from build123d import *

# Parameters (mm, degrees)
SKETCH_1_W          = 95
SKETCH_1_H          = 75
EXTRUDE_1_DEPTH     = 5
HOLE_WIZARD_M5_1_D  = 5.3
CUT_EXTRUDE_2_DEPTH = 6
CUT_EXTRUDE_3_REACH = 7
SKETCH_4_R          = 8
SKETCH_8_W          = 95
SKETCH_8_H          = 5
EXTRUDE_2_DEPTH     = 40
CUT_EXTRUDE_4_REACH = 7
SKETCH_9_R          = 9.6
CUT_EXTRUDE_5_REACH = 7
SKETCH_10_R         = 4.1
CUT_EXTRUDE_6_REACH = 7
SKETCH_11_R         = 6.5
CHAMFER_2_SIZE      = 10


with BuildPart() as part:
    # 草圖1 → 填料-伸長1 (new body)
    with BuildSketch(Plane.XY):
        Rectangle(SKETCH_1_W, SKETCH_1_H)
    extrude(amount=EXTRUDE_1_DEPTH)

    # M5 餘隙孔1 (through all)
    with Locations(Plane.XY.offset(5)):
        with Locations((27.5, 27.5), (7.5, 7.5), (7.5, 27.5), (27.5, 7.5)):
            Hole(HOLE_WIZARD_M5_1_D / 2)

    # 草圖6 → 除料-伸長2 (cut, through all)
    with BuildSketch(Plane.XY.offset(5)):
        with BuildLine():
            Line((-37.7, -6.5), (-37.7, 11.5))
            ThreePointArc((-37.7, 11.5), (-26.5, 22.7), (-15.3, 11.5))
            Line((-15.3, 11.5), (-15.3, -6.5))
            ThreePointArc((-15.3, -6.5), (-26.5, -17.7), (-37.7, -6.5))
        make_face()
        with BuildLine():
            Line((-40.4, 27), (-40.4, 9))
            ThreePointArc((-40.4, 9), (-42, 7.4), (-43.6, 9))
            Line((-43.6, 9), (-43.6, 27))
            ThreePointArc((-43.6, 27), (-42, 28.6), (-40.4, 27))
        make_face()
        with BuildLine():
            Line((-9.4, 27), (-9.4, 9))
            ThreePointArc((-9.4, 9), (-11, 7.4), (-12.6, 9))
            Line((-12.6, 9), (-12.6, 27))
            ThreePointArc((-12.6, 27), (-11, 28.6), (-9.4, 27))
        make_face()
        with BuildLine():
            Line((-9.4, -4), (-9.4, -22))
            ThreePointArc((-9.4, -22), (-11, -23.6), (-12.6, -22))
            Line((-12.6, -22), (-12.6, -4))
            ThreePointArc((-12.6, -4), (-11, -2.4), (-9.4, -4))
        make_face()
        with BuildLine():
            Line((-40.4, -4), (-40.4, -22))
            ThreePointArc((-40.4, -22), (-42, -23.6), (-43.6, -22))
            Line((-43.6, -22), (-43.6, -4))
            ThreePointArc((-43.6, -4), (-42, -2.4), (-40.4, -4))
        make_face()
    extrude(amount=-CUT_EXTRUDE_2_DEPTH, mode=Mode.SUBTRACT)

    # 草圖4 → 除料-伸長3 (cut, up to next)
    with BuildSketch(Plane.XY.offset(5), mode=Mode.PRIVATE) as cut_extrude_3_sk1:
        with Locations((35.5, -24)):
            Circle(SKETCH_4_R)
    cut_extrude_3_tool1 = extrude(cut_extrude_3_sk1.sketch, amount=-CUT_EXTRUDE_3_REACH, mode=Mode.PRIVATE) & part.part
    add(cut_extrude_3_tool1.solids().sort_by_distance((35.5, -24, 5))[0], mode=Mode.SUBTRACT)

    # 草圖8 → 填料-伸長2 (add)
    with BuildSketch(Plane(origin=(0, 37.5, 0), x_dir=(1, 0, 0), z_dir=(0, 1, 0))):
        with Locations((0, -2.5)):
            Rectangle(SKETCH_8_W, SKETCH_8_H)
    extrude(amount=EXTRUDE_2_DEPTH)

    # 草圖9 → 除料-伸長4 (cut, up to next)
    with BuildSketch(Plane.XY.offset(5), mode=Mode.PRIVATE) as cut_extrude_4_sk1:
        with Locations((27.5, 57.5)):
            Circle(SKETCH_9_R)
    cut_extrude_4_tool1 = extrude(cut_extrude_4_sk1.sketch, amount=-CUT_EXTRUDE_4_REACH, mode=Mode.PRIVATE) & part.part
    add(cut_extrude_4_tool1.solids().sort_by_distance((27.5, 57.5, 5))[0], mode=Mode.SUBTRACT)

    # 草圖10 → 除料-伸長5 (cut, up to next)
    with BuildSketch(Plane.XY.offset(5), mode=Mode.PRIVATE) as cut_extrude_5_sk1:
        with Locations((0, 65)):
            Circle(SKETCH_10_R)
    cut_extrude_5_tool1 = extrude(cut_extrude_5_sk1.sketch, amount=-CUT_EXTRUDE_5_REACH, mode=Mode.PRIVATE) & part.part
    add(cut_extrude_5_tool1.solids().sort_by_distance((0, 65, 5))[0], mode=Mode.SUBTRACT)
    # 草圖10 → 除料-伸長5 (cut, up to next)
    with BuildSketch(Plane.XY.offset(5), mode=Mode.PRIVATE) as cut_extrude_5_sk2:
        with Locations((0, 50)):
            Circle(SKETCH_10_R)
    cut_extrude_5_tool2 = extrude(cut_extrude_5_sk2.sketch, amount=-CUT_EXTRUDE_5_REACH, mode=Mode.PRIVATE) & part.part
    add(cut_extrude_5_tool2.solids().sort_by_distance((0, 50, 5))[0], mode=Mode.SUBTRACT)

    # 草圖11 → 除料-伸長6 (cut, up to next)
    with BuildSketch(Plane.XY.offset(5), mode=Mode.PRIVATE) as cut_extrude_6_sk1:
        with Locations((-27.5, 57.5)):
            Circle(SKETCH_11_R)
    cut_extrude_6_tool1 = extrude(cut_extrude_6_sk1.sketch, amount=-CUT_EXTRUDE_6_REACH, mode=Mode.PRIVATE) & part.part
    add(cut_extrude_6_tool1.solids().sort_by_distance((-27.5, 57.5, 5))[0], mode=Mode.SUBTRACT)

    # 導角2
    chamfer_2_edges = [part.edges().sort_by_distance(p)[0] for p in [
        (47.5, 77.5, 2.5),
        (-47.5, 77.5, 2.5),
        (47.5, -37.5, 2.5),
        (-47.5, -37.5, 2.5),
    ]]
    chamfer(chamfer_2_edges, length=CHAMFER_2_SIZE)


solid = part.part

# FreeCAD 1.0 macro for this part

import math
import FreeCAD as App
import Part
import Sketcher
from FreeCAD import Vector


def edges_at(feature, points):
    """Names of the edges that pass closest to the given points."""
    edges = feature.Shape.Edges
    near = lambda p: min(range(len(edges)), key=lambda i: edges[i].distToShape(Part.Vertex(*p))[0])
    return sorted({f"Edge{near(p) + 1}" for p in points})

doc = App.newDocument("Part")
params = doc.addObject("Spreadsheet::Sheet", "Params")
for row, (alias, value) in enumerate([
    ("sketch1_width", "95 mm"),
    ("sketch1_height", "75 mm"),
    ("pad1_length", "5 mm"),
    ("sketch2_diameter", "5.3 mm"),
    ("hole_diameter", "5.3 mm"),
    ("sketch3_radius", "11.2 mm"),
    ("sketch3_radius2", "1.6 mm"),
    ("sketch3_height", "18 mm"),
    ("sketch4_diameter", "16 mm"),
    ("sketch5_width", "95 mm"),
    ("sketch5_height", "5 mm"),
    ("pad2_length", "40 mm"),
    ("sketch6_diameter", "19.2 mm"),
    ("sketch7_diameter", "8.2 mm"),
    ("sketch8_diameter", "8.2 mm"),
    ("sketch9_diameter", "13 mm"),
    ("chamfer_size", "10 mm"),
], start=1):
    params.set(f"A{row}", alias)
    params.set(f"B{row}", "=" + value)
    params.setAlias(f"B{row}", alias)

body = doc.addObject("PartDesign::Body", "Body")

# Sketch on XY plane
sketch1 = doc.addObject("Sketcher::SketchObject", "Sketch")
body.addObject(sketch1)
sketch1.AttachmentSupport = (doc.XY_Plane, [""])
sketch1.MapMode = "FlatFace"
sketch1.addGeometry(Part.LineSegment(Vector(-48, 38, 0), Vector(-48, -38, 0)), False)
sketch1.addGeometry(Part.LineSegment(Vector(-48, -38, 0), Vector(48, -38, 0)), False)
sketch1.addGeometry(Part.LineSegment(Vector(48, -38, 0), Vector(48, 38, 0)), False)
sketch1.addGeometry(Part.LineSegment(Vector(48, 38, 0), Vector(-48, 38, 0)), False)
sketch1.addConstraint(Sketcher.Constraint("Coincident", 0, 2, 1, 1))
sketch1.addConstraint(Sketcher.Constraint("Coincident", 1, 2, 2, 1))
sketch1.addConstraint(Sketcher.Constraint("Coincident", 2, 2, 3, 1))
sketch1.addConstraint(Sketcher.Constraint("Coincident", 3, 2, 0, 1))
sketch1.addConstraint(Sketcher.Constraint("Vertical", 0))
sketch1.addConstraint(Sketcher.Constraint("Horizontal", 1))
sketch1.addConstraint(Sketcher.Constraint("Vertical", 2))
sketch1.addConstraint(Sketcher.Constraint("Horizontal", 3))
sketch1.addConstraint(Sketcher.Constraint("Symmetric", 0, 2, 2, 2, -1, 1))
sketch1.addConstraint(Sketcher.Constraint("DistanceX", 1, 1, 1, 2, 95.0))
sketch1.addConstraint(Sketcher.Constraint("DistanceY", 0, 2, 0, 1, 75.0))
sketch1.setExpression("Constraints[9]", "Params.sketch1_width")
sketch1.setExpression("Constraints[10]", "Params.sketch1_height")
pad1 = doc.addObject("PartDesign::Pad", "Pad")
body.addObject(pad1)
pad1.Profile = sketch1
pad1.setExpression("Length", "Params.pad1_length")

# Sketch on XY plane
sketch2 = doc.addObject("Sketcher::SketchObject", "Sketch001")
body.addObject(sketch2)
sketch2.AttachmentSupport = (doc.XY_Plane, [""])
sketch2.MapMode = "FlatFace"
sketch2.AttachmentOffset = App.Placement(Vector(0, 0, 5), App.Rotation())
sketch2.addGeometry(Part.Circle(Vector(27.5, 27.5, 0), Vector(0, 0, 1), 2.6), False)
sketch2.addGeometry(Part.Circle(Vector(7.5, 7.5, 0), Vector(0, 0, 1), 2.6), False)
sketch2.addGeometry(Part.Circle(Vector(7.5, 27.5, 0), Vector(0, 0, 1), 2.6), False)
sketch2.addGeometry(Part.Circle(Vector(27.5, 7.5, 0), Vector(0, 0, 1), 2.6), False)
sketch2.addConstraint(Sketcher.Constraint("Equal", 0, 1))
sketch2.addConstraint(Sketcher.Constraint("Equal", 1, 2))
sketch2.addConstraint(Sketcher.Constraint("Equal", 2, 3))
sketch2.addConstraint(Sketcher.Constraint("Horizontal", 0, 3, 2, 3))
sketch2.addConstraint(Sketcher.Constraint("Horizontal", 1, 3, 3, 3))
sketch2.addConstraint(Sketcher.Constraint("Vertical", 1, 3, 2, 3))
sketch2.addConstraint(Sketcher.Constraint("Vertical", 0, 3, 3, 3))
sketch2.addConstraint(Sketcher.Constraint("Diameter", 0, 5.3))
sketch2.addConstraint(Sketcher.Constraint("DistanceX", 1, 3, 0, 3, 20.0))
sketch2.addConstraint(Sketcher.Constraint("DistanceY", 1, 3, 0, 3, 20.0))
sketch2.addConstraint(Sketcher.Constraint("DistanceX", -1, 1, 0, 3, 27.5))
sketch2.addConstraint(Sketcher.Constraint("DistanceY", -1, 1, 0, 3, 27.5))
sketch2.setExpression("Constraints[7]", "Params.sketch2_diameter")
doc.recompute()
hole = doc.addObject("PartDesign::Hole", "Hole")
body.addObject(hole)
hole.Profile = sketch2
hole.ThreadType = "None"
hole.setExpression("Diameter", "Params.hole_diameter")
hole.DepthType = "ThroughAll"

# Sketch on XY plane
sketch3 = doc.addObject("Sketcher::SketchObject", "Sketch002")
body.addObject(sketch3)
sketch3.AttachmentSupport = (doc.XY_Plane, [""])
sketch3.MapMode = "FlatFace"
sketch3.AttachmentOffset = App.Placement(Vector(0, 0, 5), App.Rotation())
sketch3.addGeometry(Part.LineSegment(Vector(-37.7, 11.5, 0), Vector(-37.7, -6.5, 0)), False)
sketch3.addGeometry(Part.ArcOfCircle(Part.Circle(Vector(-26.5, -6.5, 0), Vector(0, 0, 1), 11.2), math.radians(180), math.radians(360)), False)
sketch3.addGeometry(Part.LineSegment(Vector(-15.3, -6.5, 0), Vector(-15.3, 11.5, 0)), False)
sketch3.addGeometry(Part.ArcOfCircle(Part.Circle(Vector(-26.5, 11.5, 0), Vector(0, 0, 1), 11.2), math.radians(0), math.radians(180)), False)
sketch3.addGeometry(Part.LineSegment(Vector(-40.4, 9, 0), Vector(-40.4, 27, 0)), False)
sketch3.addGeometry(Part.ArcOfCircle(Part.Circle(Vector(-42, 27, 0), Vector(0, 0, 1), 1.6), math.radians(0), math.radians(180)), False)
sketch3.addGeometry(Part.LineSegment(Vector(-43.6, 27, 0), Vector(-43.6, 9, 0)), False)
sketch3.addGeometry(Part.ArcOfCircle(Part.Circle(Vector(-42, 9, 0), Vector(0, 0, 1), 1.6), math.radians(180), math.radians(360)), False)
sketch3.addGeometry(Part.LineSegment(Vector(-9.4, 9, 0), Vector(-9.4, 27, 0)), False)
sketch3.addGeometry(Part.ArcOfCircle(Part.Circle(Vector(-11, 27, 0), Vector(0, 0, 1), 1.6), math.radians(0), math.radians(180)), False)
sketch3.addGeometry(Part.LineSegment(Vector(-12.6, 27, 0), Vector(-12.6, 9, 0)), False)
sketch3.addGeometry(Part.ArcOfCircle(Part.Circle(Vector(-11, 9, 0), Vector(0, 0, 1), 1.6), math.radians(180), math.radians(360)), False)
sketch3.addGeometry(Part.LineSegment(Vector(-9.4, -22, 0), Vector(-9.4, -4, 0)), False)
sketch3.addGeometry(Part.ArcOfCircle(Part.Circle(Vector(-11, -4, 0), Vector(0, 0, 1), 1.6), math.radians(0), math.radians(180)), False)
sketch3.addGeometry(Part.LineSegment(Vector(-12.6, -4, 0), Vector(-12.6, -22, 0)), False)
sketch3.addGeometry(Part.ArcOfCircle(Part.Circle(Vector(-11, -22, 0), Vector(0, 0, 1), 1.6), math.radians(180), math.radians(360)), False)
sketch3.addGeometry(Part.LineSegment(Vector(-40.4, -22, 0), Vector(-40.4, -4, 0)), False)
sketch3.addGeometry(Part.ArcOfCircle(Part.Circle(Vector(-42, -4, 0), Vector(0, 0, 1), 1.6), math.radians(0), math.radians(180)), False)
sketch3.addGeometry(Part.LineSegment(Vector(-43.6, -4, 0), Vector(-43.6, -22, 0)), False)
sketch3.addGeometry(Part.ArcOfCircle(Part.Circle(Vector(-42, -22, 0), Vector(0, 0, 1), 1.6), math.radians(180), math.radians(360)), False)
sketch3.addConstraint(Sketcher.Constraint("Tangent", 0, 2, 1, 1))
sketch3.addConstraint(Sketcher.Constraint("Tangent", 1, 2, 2, 1))
sketch3.addConstraint(Sketcher.Constraint("Tangent", 2, 2, 3, 1))
sketch3.addConstraint(Sketcher.Constraint("Tangent", 3, 2, 0, 1))
sketch3.addConstraint(Sketcher.Constraint("Tangent", 4, 2, 5, 1))
sketch3.addConstraint(Sketcher.Constraint("Tangent", 5, 2, 6, 1))
sketch3.addConstraint(Sketcher.Constraint("Tangent", 6, 2, 7, 1))
sketch3.addConstraint(Sketcher.Constraint("Tangent", 7, 2, 4, 1))
sketch3.addConstraint(Sketcher.Constraint("Tangent", 8, 2, 9, 1))
sketch3.addConstraint(Sketcher.Constraint("Tangent", 9, 2, 10, 1))
sketch3.addConstraint(Sketcher.Constraint("Tangent", 10, 2, 11, 1))
sketch3.addConstraint(Sketcher.Constraint("Tangent", 11, 2, 8, 1))
sketch3.addConstraint(Sketcher.Constraint("Tangent", 12, 2, 13, 1))
sketch3.addConstraint(Sketcher.Constraint("Tangent", 13, 2, 14, 1))
sketch3.addConstraint(Sketcher.Constraint("Tangent", 14, 2, 15, 1))
sketch3.addConstraint(Sketcher.Constraint("Tangent", 15, 2, 12, 1))
sketch3.addConstraint(Sketcher.Constraint("Tangent", 16, 2, 17, 1))
sketch3.addConstraint(Sketcher.Constraint("Tangent", 17, 2, 18, 1))
sketch3.addConstraint(Sketcher.Constraint("Tangent", 18, 2, 19, 1))
sketch3.addConstraint(Sketcher.Constraint("Tangent", 19, 2, 16, 1))
sketch3.addConstraint(Sketcher.Constraint("Vertical", 0))
sketch3.addConstraint(Sketcher.Constraint("Vertical", 2))
sketch3.addConstraint(Sketcher.Constraint("Vertical", 4))
sketch3.addConstraint(Sketcher.Constraint("Vertical", 6))
sketch3.addConstraint(Sketcher.Constraint("Vertical", 8))
sketch3.addConstraint(Sketcher.Constraint("Vertical", 10))
sketch3.addConstraint(Sketcher.Constraint("Vertical", 12))
sketch3.addConstraint(Sketcher.Constraint("Vertical", 14))
sketch3.addConstraint(Sketcher.Constraint("Vertical", 16))
sketch3.addConstraint(Sketcher.Constraint("Vertical", 18))
sketch3.addConstraint(Sketcher.Constraint("Equal", 7, 9))
sketch3.addConstraint(Sketcher.Constraint("Equal", 11, 13))
sketch3.addConstraint(Sketcher.Constraint("Equal", 15, 17))
sketch3.addConstraint(Sketcher.Constraint("Horizontal", 5, 3, 9, 3))
sketch3.addConstraint(Sketcher.Constraint("Horizontal", 7, 3, 11, 3))
sketch3.addConstraint(Sketcher.Constraint("Horizontal", 13, 3, 17, 3))
sketch3.addConstraint(Sketcher.Constraint("Horizontal", 15, 3, 19, 3))
sketch3.addConstraint(Sketcher.Constraint("Vertical", 11, 3, 13, 3))
sketch3.addConstraint(Sketcher.Constraint("Vertical", 7, 3, 17, 3))
sketch3.addConstraint(Sketcher.Constraint("Equal", 2, 4))
sketch3.addConstraint(Sketcher.Constraint("Equal", 10, 12))
sketch3.addConstraint(Sketcher.Constraint("Radius", 1, 11.2))
sketch3.addConstraint(Sketcher.Constraint("Radius", 5, 1.6))
sketch3.addConstraint(Sketcher.Constraint("DistanceY", 0, 2, 0, 1, 18.0))
sketch3.addConstraint(Sketcher.Constraint("DistanceX", 5, 3, -1, 1, 42.0))
sketch3.addConstraint(Sketcher.Constraint("DistanceY", -1, 1, 5, 3, 27.0))
sketch3.addConstraint(Sketcher.Constraint("DistanceX", 9, 3, -1, 1, 11.0))
sketch3.addConstraint(Sketcher.Constraint("DistanceY", 13, 3, -1, 1, 4.0))
sketch3.addConstraint(Sketcher.Constraint("DistanceX", 1, 3, -1, 1, 26.5))
sketch3.addConstraint(Sketcher.Constraint("DistanceY", 1, 3, -1, 1, 6.5))
sketch3.setExpression("Constraints[41]", "Params.sketch3_radius")
sketch3.setExpression("Constraints[42]", "Params.sketch3_radius2")
sketch3.setExpression("Constraints[43]", "Params.sketch3_height")
pocket1 = doc.addObject("PartDesign::Pocket", "Pocket")
body.addObject(pocket1)
pocket1.Profile = sketch3
pocket1.Type = "ThroughAll"

# Sketch on XY plane
sketch4 = doc.addObject("Sketcher::SketchObject", "Sketch003")
body.addObject(sketch4)
sketch4.AttachmentSupport = (doc.XY_Plane, [""])
sketch4.MapMode = "FlatFace"
sketch4.AttachmentOffset = App.Placement(Vector(0, 0, 5), App.Rotation())
sketch4.addGeometry(Part.Circle(Vector(36, -24, 0), Vector(0, 0, 1), 8), False)
sketch4.addConstraint(Sketcher.Constraint("Diameter", 0, 16.0))
sketch4.addConstraint(Sketcher.Constraint("DistanceY", 0, 3, -1, 1, 24.0))
sketch4.addConstraint(Sketcher.Constraint("DistanceX", -1, 1, 0, 3, 35.5))
sketch4.setExpression("Constraints[0]", "Params.sketch4_diameter")
pocket2 = doc.addObject("PartDesign::Pocket", "Pocket001")
body.addObject(pocket2)
pocket2.Profile = sketch4
pocket2.Type = "UpToFirst"

# Sketch on XZ plane
sketch5 = doc.addObject("Sketcher::SketchObject", "Sketch004")
body.addObject(sketch5)
sketch5.AttachmentSupport = (doc.XZ_Plane, [""])
sketch5.MapMode = "FlatFace"
sketch5.AttachmentOffset = App.Placement(Vector(0, 0, -37.5), App.Rotation())
sketch5.addGeometry(Part.LineSegment(Vector(-48, 0, 0), Vector(-48, 5, 0)), False)
sketch5.addGeometry(Part.LineSegment(Vector(-48, 5, 0), Vector(48, 5, 0)), False)
sketch5.addGeometry(Part.LineSegment(Vector(48, 5, 0), Vector(48, 0, 0)), False)
sketch5.addGeometry(Part.LineSegment(Vector(48, 0, 0), Vector(-48, 0, 0)), False)
sketch5.addConstraint(Sketcher.Constraint("Coincident", 0, 2, 1, 1))
sketch5.addConstraint(Sketcher.Constraint("Coincident", 1, 2, 2, 1))
sketch5.addConstraint(Sketcher.Constraint("Coincident", 2, 2, 3, 1))
sketch5.addConstraint(Sketcher.Constraint("Coincident", 3, 2, 0, 1))
sketch5.addConstraint(Sketcher.Constraint("Vertical", 0))
sketch5.addConstraint(Sketcher.Constraint("Horizontal", 1))
sketch5.addConstraint(Sketcher.Constraint("Vertical", 2))
sketch5.addConstraint(Sketcher.Constraint("Horizontal", 3))
sketch5.addConstraint(Sketcher.Constraint("Symmetric", 2, 2, 3, 2, -1, 1))
sketch5.addConstraint(Sketcher.Constraint("DistanceX", 1, 1, 1, 2, 95.0))
sketch5.addConstraint(Sketcher.Constraint("DistanceY", 0, 1, 0, 2, 5.0))
sketch5.setExpression("Constraints[9]", "Params.sketch5_width")
sketch5.setExpression("Constraints[10]", "Params.sketch5_height")
pad2 = doc.addObject("PartDesign::Pad", "Pad001")
body.addObject(pad2)
pad2.Profile = sketch5
pad2.setExpression("Length", "Params.pad2_length")
pad2.Reversed = True

# Sketch on XY plane
sketch6 = doc.addObject("Sketcher::SketchObject", "Sketch005")
body.addObject(sketch6)
sketch6.AttachmentSupport = (doc.XY_Plane, [""])
sketch6.MapMode = "FlatFace"
sketch6.AttachmentOffset = App.Placement(Vector(0, 0, 5), App.Rotation())
sketch6.addGeometry(Part.Circle(Vector(28, 58, 0), Vector(0, 0, 1), 10), False)
sketch6.addConstraint(Sketcher.Constraint("Diameter", 0, 19.2))
sketch6.addConstraint(Sketcher.Constraint("DistanceX", -1, 1, 0, 3, 27.5))
sketch6.addConstraint(Sketcher.Constraint("DistanceY", -1, 1, 0, 3, 57.5))
sketch6.setExpression("Constraints[0]", "Params.sketch6_diameter")
pocket3 = doc.addObject("PartDesign::Pocket", "Pocket002")
body.addObject(pocket3)
pocket3.Profile = sketch6
pocket3.Type = "UpToFirst"

# Sketch on XY plane
sketch7 = doc.addObject("Sketcher::SketchObject", "Sketch006")
body.addObject(sketch7)
sketch7.AttachmentSupport = (doc.XY_Plane, [""])
sketch7.MapMode = "FlatFace"
sketch7.AttachmentOffset = App.Placement(Vector(0, 0, 5), App.Rotation())
sketch7.addGeometry(Part.Circle(Vector(0, 65, 0), Vector(0, 0, 1), 4.1), False)
sketch7.addConstraint(Sketcher.Constraint("PointOnObject", 0, 3, -2))
sketch7.addConstraint(Sketcher.Constraint("Diameter", 0, 8.2))
sketch7.addConstraint(Sketcher.Constraint("DistanceY", -1, 1, 0, 3, 65.0))
sketch7.setExpression("Constraints[1]", "Params.sketch7_diameter")
pocket4 = doc.addObject("PartDesign::Pocket", "Pocket003")
body.addObject(pocket4)
pocket4.Profile = sketch7
pocket4.Type = "UpToFirst"

# Sketch on XY plane
sketch8 = doc.addObject("Sketcher::SketchObject", "Sketch007")
body.addObject(sketch8)
sketch8.AttachmentSupport = (doc.XY_Plane, [""])
sketch8.MapMode = "FlatFace"
sketch8.AttachmentOffset = App.Placement(Vector(0, 0, 5), App.Rotation())
sketch8.addGeometry(Part.Circle(Vector(0, 50, 0), Vector(0, 0, 1), 4.1), False)
sketch8.addConstraint(Sketcher.Constraint("PointOnObject", 0, 3, -2))
sketch8.addConstraint(Sketcher.Constraint("Diameter", 0, 8.2))
sketch8.addConstraint(Sketcher.Constraint("DistanceY", -1, 1, 0, 3, 50.0))
sketch8.setExpression("Constraints[1]", "Params.sketch8_diameter")
pocket5 = doc.addObject("PartDesign::Pocket", "Pocket004")
body.addObject(pocket5)
pocket5.Profile = sketch8
pocket5.Type = "UpToFirst"

# Sketch on XY plane
sketch9 = doc.addObject("Sketcher::SketchObject", "Sketch008")
body.addObject(sketch9)
sketch9.AttachmentSupport = (doc.XY_Plane, [""])
sketch9.MapMode = "FlatFace"
sketch9.AttachmentOffset = App.Placement(Vector(0, 0, 5), App.Rotation())
sketch9.addGeometry(Part.Circle(Vector(-28, 58, 0), Vector(0, 0, 1), 6), False)
sketch9.addConstraint(Sketcher.Constraint("Diameter", 0, 13.0))
sketch9.addConstraint(Sketcher.Constraint("DistanceX", 0, 3, -1, 1, 27.5))
sketch9.addConstraint(Sketcher.Constraint("DistanceY", -1, 1, 0, 3, 57.5))
sketch9.setExpression("Constraints[0]", "Params.sketch9_diameter")
pocket6 = doc.addObject("PartDesign::Pocket", "Pocket005")
body.addObject(pocket6)
pocket6.Profile = sketch9
pocket6.Type = "UpToFirst"
doc.recompute()

chamfer = doc.addObject("PartDesign::Chamfer", "Chamfer")
body.addObject(chamfer)
chamfer.Base = (pocket6, edges_at(pocket6, [
    (47.5, 77.5, 2.5),
    (-47.5, 77.5, 2.5),
    (47.5, -37.5, 2.5),
    (-47.5, -37.5, 2.5),
]))
chamfer.setExpression("Size", "Params.chamfer_size")

doc.recompute()
